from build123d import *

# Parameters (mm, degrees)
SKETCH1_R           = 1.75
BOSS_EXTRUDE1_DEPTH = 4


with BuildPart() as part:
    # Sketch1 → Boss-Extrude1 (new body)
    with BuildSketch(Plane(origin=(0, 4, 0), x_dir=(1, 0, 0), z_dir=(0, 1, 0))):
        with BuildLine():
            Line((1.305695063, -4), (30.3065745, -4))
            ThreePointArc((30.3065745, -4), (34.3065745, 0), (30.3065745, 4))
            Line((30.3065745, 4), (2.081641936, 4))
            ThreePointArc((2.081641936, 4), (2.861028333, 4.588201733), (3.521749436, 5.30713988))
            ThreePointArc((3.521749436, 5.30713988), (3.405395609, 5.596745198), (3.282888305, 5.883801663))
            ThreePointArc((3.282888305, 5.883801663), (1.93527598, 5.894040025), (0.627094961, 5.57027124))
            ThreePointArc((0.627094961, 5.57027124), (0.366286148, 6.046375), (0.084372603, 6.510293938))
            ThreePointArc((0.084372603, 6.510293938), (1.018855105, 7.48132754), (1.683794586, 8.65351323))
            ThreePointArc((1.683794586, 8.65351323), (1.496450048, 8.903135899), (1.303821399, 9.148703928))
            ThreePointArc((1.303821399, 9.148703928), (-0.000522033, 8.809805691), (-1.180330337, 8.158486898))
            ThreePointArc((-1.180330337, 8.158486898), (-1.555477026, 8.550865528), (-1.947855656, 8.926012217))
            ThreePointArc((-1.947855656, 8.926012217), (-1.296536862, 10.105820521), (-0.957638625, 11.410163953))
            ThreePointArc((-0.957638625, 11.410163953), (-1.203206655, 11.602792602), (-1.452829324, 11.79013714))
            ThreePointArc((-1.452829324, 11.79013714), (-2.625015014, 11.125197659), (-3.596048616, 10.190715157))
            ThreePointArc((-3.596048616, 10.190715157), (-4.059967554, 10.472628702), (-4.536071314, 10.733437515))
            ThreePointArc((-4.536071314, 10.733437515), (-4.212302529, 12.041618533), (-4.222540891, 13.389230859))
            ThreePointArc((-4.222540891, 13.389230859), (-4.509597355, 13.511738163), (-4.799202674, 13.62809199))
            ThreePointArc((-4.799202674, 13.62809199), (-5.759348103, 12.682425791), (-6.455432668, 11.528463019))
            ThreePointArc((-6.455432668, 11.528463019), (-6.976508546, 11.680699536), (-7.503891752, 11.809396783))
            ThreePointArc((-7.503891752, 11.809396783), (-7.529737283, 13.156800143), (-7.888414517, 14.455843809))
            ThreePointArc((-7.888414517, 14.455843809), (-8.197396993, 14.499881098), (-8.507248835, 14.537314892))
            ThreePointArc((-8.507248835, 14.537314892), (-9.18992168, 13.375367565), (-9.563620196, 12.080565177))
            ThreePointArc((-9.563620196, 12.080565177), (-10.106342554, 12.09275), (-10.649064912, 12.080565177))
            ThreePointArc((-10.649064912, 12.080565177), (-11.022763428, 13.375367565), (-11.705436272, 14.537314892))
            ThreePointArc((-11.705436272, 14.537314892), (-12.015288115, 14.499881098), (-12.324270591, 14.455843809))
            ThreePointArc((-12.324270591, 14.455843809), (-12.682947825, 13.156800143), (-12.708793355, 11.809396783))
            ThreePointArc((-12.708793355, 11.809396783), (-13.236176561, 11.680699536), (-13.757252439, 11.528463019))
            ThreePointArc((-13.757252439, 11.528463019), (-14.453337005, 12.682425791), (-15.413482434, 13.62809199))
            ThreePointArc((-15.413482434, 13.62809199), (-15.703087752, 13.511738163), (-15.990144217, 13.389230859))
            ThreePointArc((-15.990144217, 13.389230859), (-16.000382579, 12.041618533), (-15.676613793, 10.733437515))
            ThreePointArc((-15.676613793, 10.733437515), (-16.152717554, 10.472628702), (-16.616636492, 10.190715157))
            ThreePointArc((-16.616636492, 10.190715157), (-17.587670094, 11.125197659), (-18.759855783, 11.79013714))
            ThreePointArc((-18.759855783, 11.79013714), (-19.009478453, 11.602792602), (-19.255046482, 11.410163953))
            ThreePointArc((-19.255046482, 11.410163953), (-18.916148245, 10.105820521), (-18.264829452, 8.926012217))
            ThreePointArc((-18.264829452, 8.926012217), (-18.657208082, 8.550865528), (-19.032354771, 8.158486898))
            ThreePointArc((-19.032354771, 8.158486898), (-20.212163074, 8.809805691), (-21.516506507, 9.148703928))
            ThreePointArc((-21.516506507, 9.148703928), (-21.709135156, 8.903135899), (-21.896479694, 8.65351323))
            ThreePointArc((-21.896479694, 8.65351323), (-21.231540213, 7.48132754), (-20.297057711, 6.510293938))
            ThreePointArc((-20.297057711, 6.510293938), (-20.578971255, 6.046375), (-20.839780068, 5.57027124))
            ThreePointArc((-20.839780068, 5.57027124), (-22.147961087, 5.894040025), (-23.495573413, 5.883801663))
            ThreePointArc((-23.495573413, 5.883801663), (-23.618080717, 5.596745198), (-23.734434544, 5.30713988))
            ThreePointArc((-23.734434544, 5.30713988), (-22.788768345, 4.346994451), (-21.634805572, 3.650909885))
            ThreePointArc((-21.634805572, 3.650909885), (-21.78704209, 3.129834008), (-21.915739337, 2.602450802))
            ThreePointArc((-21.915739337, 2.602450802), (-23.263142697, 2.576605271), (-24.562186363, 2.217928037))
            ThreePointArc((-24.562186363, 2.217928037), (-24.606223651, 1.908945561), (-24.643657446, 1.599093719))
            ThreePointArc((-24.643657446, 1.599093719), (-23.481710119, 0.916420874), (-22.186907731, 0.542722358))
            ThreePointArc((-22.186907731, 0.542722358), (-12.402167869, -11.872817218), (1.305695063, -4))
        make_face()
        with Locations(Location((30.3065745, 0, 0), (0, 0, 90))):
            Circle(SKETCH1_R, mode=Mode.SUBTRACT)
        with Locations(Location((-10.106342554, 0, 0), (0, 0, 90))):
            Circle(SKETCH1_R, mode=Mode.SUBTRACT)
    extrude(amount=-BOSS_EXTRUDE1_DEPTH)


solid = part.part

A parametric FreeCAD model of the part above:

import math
import FreeCAD as App
import Part
import Sketcher
from FreeCAD import Vector

doc = App.newDocument("Part")
body = doc.addObject("PartDesign::Body", "Body")

# Sketch on XZ plane
sketch1 = body.newObject("Sketcher::SketchObject", "Sketch")
sketch1.AttachmentSupport = (doc.getObject("XZ_Plane"), [""])
sketch1.MapMode = "FlatFace"
sketch1.AttachmentOffset = App.Placement(Vector(0, 0, -4), App.Rotation())
sketch1.addGeometry(Part.LineSegment(Vector(1.305695, 4, 0), Vector(30.306574, 4, 0)), False)
sketch1.addGeometry(Part.ArcOfCircle(Part.Circle(Vector(30.306574, 0, 0), Vector(0, 0, 1), 4), math.radians(-90), math.radians(90)), False)
sketch1.addGeometry(Part.LineSegment(Vector(30.306574, -4, 0), Vector(2.081642, -4, 0)), False)
sketch1.addGeometry(Part.ArcOfCircle(Part.Circle(Vector(-0.768289, -8.586708, 0), Vector(0, 0, 1), 5.4), math.radians(37.396512), math.radians(58.14543)), False)
sketch1.addGeometry(Part.ArcOfCircle(Part.Circle(Vector(-10.106343, 0, 0), Vector(0, 0, 1), 14.625), math.radians(-23.722744), math.radians(-21.277256)), False)
sketch1.addGeometry(Part.ArcOfCircle(Part.Circle(Vector(2.568378, -0.531281, 0), Vector(0, 0, 1), 5.4), math.radians(-111.069299), math.radians(-82.396512)), False)
sketch1.addGeometry(Part.ArcOfCircle(Part.Circle(Vector(-10.106343, 0, 0), Vector(0, 0, 1), 12.09275), math.radians(-32.572297), math.radians(-27.427703)), False)
sketch1.addGeometry(Part.ArcOfCircle(Part.Circle(Vector(-3.308879, -10.710989, 0), Vector(0, 0, 1), 5.4), math.radians(22.396512), math.radians(51.069299)), False)
sketch1.addGeometry(Part.ArcOfCircle(Part.Circle(Vector(-10.106342, 0, 0), Vector(0, 0, 1), 14.625), math.radians(-38.722744), math.radians(-36.277256)), False)
sketch1.addGeometry(Part.ArcOfCircle(Part.Circle(Vector(1.998992, -3.793637, 0), Vector(0, 0, 1), 5.4), math.radians(-126.069299), math.radians(-97.396512)), False)
sketch1.addGeometry(Part.ArcOfCircle(Part.Circle(Vector(-10.106343, 0, 0), Vector(0, 0, 1), 12.09275), math.radians(-47.572297), math.radians(-42.427703)), False)
sketch1.addGeometry(Part.ArcOfCircle(Part.Circle(Vector(-6.312705, -12.105334, 0), Vector(0, 0, 1), 5.4), math.radians(7.396512), math.radians(36.069299)), False)
sketch1.addGeometry(Part.ArcOfCircle(Part.Circle(Vector(-10.106343, 0.000001, 0), Vector(0, 0, 1), 14.625001), math.radians(-53.722744), math.radians(-51.277256)), False)
sketch1.addGeometry(Part.ArcOfCircle(Part.Circle(Vector(0.604647, -6.797463, 0), Vector(0, 0, 1), 5.4), math.radians(-141.069299), math.radians(-112.396512)), False)
sketch1.addGeometry(Part.ArcOfCircle(Part.Circle(Vector(-10.106343, 0, 0), Vector(0, 0, 1), 12.09275), math.radians(-62.572297), math.radians(-57.427703)), False)
sketch1.addGeometry(Part.ArcOfCircle(Part.Circle(Vector(-9.575061, -12.674721, 0), Vector(0, 0, 1), 5.4), math.radians(-7.603488), math.radians(21.069299)), False)
sketch1.addGeometry(Part.ArcOfCircle(Part.Circle(Vector(-10.106342, -0.000001, 0), Vector(0, 0, 1), 14.624999), math.radians(-68.722744), math.radians(-66.277256)), False)
sketch1.addGeometry(Part.ArcOfCircle(Part.Circle(Vector(-1.519634, -9.338053, 0), Vector(0, 0, 1), 5.4), math.radians(-156.069299), math.radians(-127.396512)), False)
sketch1.addGeometry(Part.ArcOfCircle(Part.Circle(Vector(-10.106343, 0, 0), Vector(0, 0, 1), 12.09275), math.radians(-77.572297), math.radians(-72.427703)), False)
sketch1.addGeometry(Part.ArcOfCircle(Part.Circle(Vector(-12.873623, -12.380346, 0), Vector(0, 0, 1), 5.4), math.radians(-22.603488), math.radians(6.069299)), False)
sketch1.addGeometry(Part.ArcOfCircle(Part.Circle(Vector(-10.106342, -0.000002, 0), Vector(0, 0, 1), 14.624998), math.radians(-83.722744), math.radians(-81.277256)), False)
sketch1.addGeometry(Part.ArcOfCircle(Part.Circle(Vector(-4.229085, -11.242271, 0), Vector(0, 0, 1), 5.4), math.radians(-171.069299), math.radians(-142.396512)), False)
sketch1.addGeometry(Part.ArcOfCircle(Part.Circle(Vector(-10.106343, 0, 0), Vector(0, 0, 1), 12.09275), math.radians(-92.572297), math.radians(-87.427703)), False)
sketch1.addGeometry(Part.ArcOfCircle(Part.Circle(Vector(-15.9836, -11.242271, 0), Vector(0, 0, 1), 5.4), math.radians(-37.603488), math.radians(-8.930701)), False)
sketch1.addGeometry(Part.ArcOfCircle(Part.Circle(Vector(-10.106343, -0.000002, 0), Vector(0, 0, 1), 14.624998), math.radians(-98.722744), math.radians(-96.277256)), False)
sketch1.addGeometry(Part.ArcOfCircle(Part.Circle(Vector(-7.339062, -12.380346, 0), Vector(0, 0, 1), 5.4), math.radians(173.930701), math.radians(202.603488)), False)
sketch1.addGeometry(Part.ArcOfCircle(Part.Circle(Vector(-10.106343, 0, 0), Vector(0, 0, 1), 12.09275), math.radians(-107.572297), math.radians(-102.427703)), False)
sketch1.addGeometry(Part.ArcOfCircle(Part.Circle(Vector(-18.693051, -9.338053, 0), Vector(0, 0, 1), 5.4), math.radians(-52.603488), math.radians(-23.930701)), False)
sketch1.addGeometry(Part.ArcOfCircle(Part.Circle(Vector(-10.106342, 0, 0), Vector(0, 0, 1), 14.625), math.radians(-113.722744), math.radians(-111.277256)), False)
sketch1.addGeometry(Part.ArcOfCircle(Part.Circle(Vector(-10.637624, -12.674721, 0), Vector(0, 0, 1), 5.4), math.radians(158.930701), math.radians(187.603488)), False)
sketch1.addGeometry(Part.ArcOfCircle(Part.Circle(Vector(-10.106343, 0, 0), Vector(0, 0, 1), 12.09275), math.radians(-122.572297), math.radians(-117.427703)), False)
sketch1.addGeometry(Part.ArcOfCircle(Part.Circle(Vector(-20.817332, -6.797463, 0), Vector(0, 0, 1), 5.4), math.radians(-67.603488), math.radians(-38.930701)), False)
sketch1.addGeometry(Part.ArcOfCircle(Part.Circle(Vector(-10.106344, -0.000001, 0), Vector(0, 0, 1), 14.624998), math.radians(-128.722744), math.radians(-126.277256)), False)
sketch1.addGeometry(Part.ArcOfCircle(Part.Circle(Vector(-13.89998, -12.105334, 0), Vector(0, 0, 1), 5.4), math.radians(143.930701), math.radians(172.603488)), False)
sketch1.addGeometry(Part.ArcOfCircle(Part.Circle(Vector(-10.106342, 0, 0), Vector(0, 0, 1), 12.09275), math.radians(-137.572297), math.radians(-132.427703)), False)
sketch1.addGeometry(Part.ArcOfCircle(Part.Circle(Vector(-22.211677, -3.793637, 0), Vector(0, 0, 1), 5.4), math.radians(-82.603488), math.radians(-53.930701)), False)
sketch1.addGeometry(Part.ArcOfCircle(Part.Circle(Vector(-10.106343, 0, 0), Vector(0, 0, 1), 14.625), math.radians(-143.722744), math.radians(-141.277256)), False)
sketch1.addGeometry(Part.ArcOfCircle(Part.Circle(Vector(-16.903806, -10.710989, 0), Vector(0, 0, 1), 5.4), math.radians(128.930701), math.radians(157.603488)), False)
sketch1.addGeometry(Part.ArcOfCircle(Part.Circle(Vector(-10.106342, 0, 0), Vector(0, 0, 1), 12.092751), math.radians(-152.572297), math.radians(-147.427703)), False)
sketch1.addGeometry(Part.ArcOfCircle(Part.Circle(Vector(-22.781063, -0.531281, 0), Vector(0, 0, 1), 5.4), math.radians(-97.603488), math.radians(-68.930701)), False)
sketch1.addGeometry(Part.ArcOfCircle(Part.Circle(Vector(-10.106342, 0, 0), Vector(0, 0, 1), 14.625), math.radians(-158.722744), math.radians(-156.277256)), False)
sketch1.addGeometry(Part.ArcOfCircle(Part.Circle(Vector(-19.444396, -8.586708, 0), Vector(0, 0, 1), 5.4), math.radians(113.930701), math.radians(142.603488)), False)
sketch1.addGeometry(Part.ArcOfCircle(Part.Circle(Vector(-10.106343, 0, 0), Vector(0, 0, 1), 12.092749), math.radians(-167.572297), math.radians(-162.427702)), False)
sketch1.addGeometry(Part.ArcOfCircle(Part.Circle(Vector(-22.486688, 2.767281, 0), Vector(0, 0, 1), 5.4), math.radians(-112.603488), math.radians(-83.930701)), False)
sketch1.addGeometry(Part.ArcOfCircle(Part.Circle(Vector(-10.10634, 0, 0), Vector(0, 0, 1), 14.625003), math.radians(-173.722744), math.radians(-171.277256)), False)
sketch1.addGeometry(Part.ArcOfCircle(Part.Circle(Vector(-21.348613, -5.877257, 0), Vector(0, 0, 1), 5.4), math.radians(98.930701), math.radians(127.603488)), False)
sketch1.addGeometry(Part.ArcOfCircle(Part.Circle(Vector(-10.106343, 0, 0), Vector(0, 0, 1), 12.09275), math.radians(19.315925), math.radians(182.572297)), False)
sketch1.addGeometry(Part.Circle(Vector(-10.106343, 0, 0), Vector(0, 0, 1), 1.75), False)
sketch1.addGeometry(Part.Circle(Vector(30.306574, 0, 0), Vector(0, 0, 1), 1.75), False)
sketch1.addConstraint(Sketcher.Constraint("Coincident", 0, 2, 1, 2))
sketch1.addConstraint(Sketcher.Constraint("Coincident", 1, 1, 2, 1))
sketch1.addConstraint(Sketcher.Constraint("Coincident", 2, 2, 3, 2))
sketch1.addConstraint(Sketcher.Constraint("Coincident", 3, 1, 4, 2))
sketch1.addConstraint(Sketcher.Constraint("Coincident", 4, 1, 5, 2))
sketch1.addConstraint(Sketcher.Constraint("Coincident", 5, 1, 6, 2))
sketch1.addConstraint(Sketcher.Constraint("Coincident", 6, 1, 7, 2))
sketch1.addConstraint(Sketcher.Constraint("Coincident", 7, 1, 8, 2))
sketch1.addConstraint(Sketcher.Constraint("Coincident", 8, 1, 9, 2))
sketch1.addConstraint(Sketcher.Constraint("Coincident", 9, 1, 10, 2))
sketch1.addConstraint(Sketcher.Constraint("Coincident", 10, 1, 11, 2))
sketch1.addConstraint(Sketcher.Constraint("Coincident", 11, 1, 12, 2))
sketch1.addConstraint(Sketcher.Constraint("Coincident", 12, 1, 13, 2))
sketch1.addConstraint(Sketcher.Constraint("Coincident", 13, 1, 14, 2))
sketch1.addConstraint(Sketcher.Constraint("Coincident", 14, 1, 15, 2))
sketch1.addConstraint(Sketcher.Constraint("Coincident", 15, 1, 16, 2))
sketch1.addConstraint(Sketcher.Constraint("Coincident", 16, 1, 17, 2))
sketch1.addConstraint(Sketcher.Constraint("Coincident", 17, 1, 18, 2))
sketch1.addConstraint(Sketcher.Constraint("Coincident", 18, 1, 19, 2))
sketch1.addConstraint(Sketcher.Constraint("Coincident", 19, 1, 20, 2))
sketch1.addConstraint(Sketcher.Constraint("Coincident", 20, 1, 21, 2))
sketch1.addConstraint(Sketcher.Constraint("Coincident", 21, 1, 22, 2))
sketch1.addConstraint(Sketcher.Constraint("Coincident", 22, 1, 23, 2))
sketch1.addConstraint(Sketcher.Constraint("Coincident", 23, 1, 24, 2))
sketch1.addConstraint(Sketcher.Constraint("Coincident", 24, 1, 25, 2))
sketch1.addConstraint(Sketcher.Constraint("Coincident", 25, 1, 26, 2))
sketch1.addConstraint(Sketcher.Constraint("Coincident", 26, 1, 27, 2))
sketch1.addConstraint(Sketcher.Constraint("Coincident", 27, 1, 28, 2))
sketch1.addConstraint(Sketcher.Constraint("Coincident", 28, 1, 29, 2))
sketch1.addConstraint(Sketcher.Constraint("Coincident", 29, 1, 30, 2))
sketch1.addConstraint(Sketcher.Constraint("Coincident", 30, 1, 31, 2))
sketch1.addConstraint(Sketcher.Constraint("Coincident", 31, 1, 32, 2))
sketch1.addConstraint(Sketcher.Constraint("Coincident", 32, 1, 33, 2))
sketch1.addConstraint(Sketcher.Constraint("Coincident", 33, 1, 34, 2))
sketch1.addConstraint(Sketcher.Constraint("Coincident", 34, 1, 35, 2))
sketch1.addConstraint(Sketcher.Constraint("Coincident", 35, 1, 36, 2))
sketch1.addConstraint(Sketcher.Constraint("Coincident", 36, 1, 37, 2))
sketch1.addConstraint(Sketcher.Constraint("Coincident", 37, 1, 38, 2))
sketch1.addConstraint(Sketcher.Constraint("Coincident", 38, 1, 39, 2))
sketch1.addConstraint(Sketcher.Constraint("Coincident", 39, 1, 40, 2))
sketch1.addConstraint(Sketcher.Constraint("Coincident", 40, 1, 41, 2))
sketch1.addConstraint(Sketcher.Constraint("Coincident", 41, 1, 42, 2))
sketch1.addConstraint(Sketcher.Constraint("Coincident", 42, 1, 43, 2))
sketch1.addConstraint(Sketcher.Constraint("Coincident", 43, 1, 44, 2))
sketch1.addConstraint(Sketcher.Constraint("Coincident", 44, 1, 45, 2))
sketch1.addConstraint(Sketcher.Constraint("Coincident", 45, 1, 46, 2))
sketch1.addConstraint(Sketcher.Constraint("Coincident", 46, 1, 0, 1))
sketch1.addConstraint(Sketcher.Constraint("Horizontal", 0))
sketch1.addConstraint(Sketcher.Constraint("Horizontal", 2))
sketch1.addConstraint(Sketcher.Constraint("Coincident", 6, 3, 4, 3))
sketch1.addConstraint(Sketcher.Constraint("Coincident", 8, 3, 4, 3))
sketch1.addConstraint(Sketcher.Constraint("Coincident", 10, 3, 4, 3))
sketch1.addConstraint(Sketcher.Constraint("Coincident", 12, 3, 4, 3))
sketch1.addConstraint(Sketcher.Constraint("Coincident", 14, 3, 4, 3))
sketch1.addConstraint(Sketcher.Constraint("Coincident", 16, 3, 4, 3))
sketch1.addConstraint(Sketcher.Constraint("Coincident", 18, 3, 4, 3))
sketch1.addConstraint(Sketcher.Constraint("Coincident", 20, 3, 4, 3))
sketch1.addConstraint(Sketcher.Constraint("Coincident", 22, 3, 4, 3))
sketch1.addConstraint(Sketcher.Constraint("Coincident", 24, 3, 4, 3))
sketch1.addConstraint(Sketcher.Constraint("Coincident", 26, 3, 4, 3))
sketch1.addConstraint(Sketcher.Constraint("Coincident", 28, 3, 4, 3))
sketch1.addConstraint(Sketcher.Constraint("Coincident", 30, 3, 4, 3))
sketch1.addConstraint(Sketcher.Constraint("Coincident", 32, 3, 4, 3))
sketch1.addConstraint(Sketcher.Constraint("Coincident", 34, 3, 4, 3))
sketch1.addConstraint(Sketcher.Constraint("Coincident", 36, 3, 4, 3))
sketch1.addConstraint(Sketcher.Constraint("Coincident", 38, 3, 4, 3))
sketch1.addConstraint(Sketcher.Constraint("Coincident", 40, 3, 4, 3))
sketch1.addConstraint(Sketcher.Constraint("Coincident", 42, 3, 4, 3))
sketch1.addConstraint(Sketcher.Constraint("Coincident", 44, 3, 4, 3))
sketch1.addConstraint(Sketcher.Constraint("Coincident", 46, 3, 4, 3))
sketch1.addConstraint(Sketcher.Constraint("Coincident", 47, 3, 4, 3))
sketch1.addConstraint(Sketcher.Constraint("Coincident", 48, 3, 1, 3))
sketch1.addConstraint(Sketcher.Constraint("PointOnObject", 1, 3, -1))
sketch1.addConstraint(Sketcher.Constraint("PointOnObject", 4, 3, -1))
sketch1.addConstraint(Sketcher.Constraint("Radius", 1, 4.0))
sketch1.addConstraint(Sketcher.Constraint("Diameter", 47, 3.5))
sketch1.addConstraint(Sketcher.Constraint("Diameter", 48, 3.5))
sketch1.addConstraint(Sketcher.Constraint("Radius", 3, 5.4))
sketch1.addConstraint(Sketcher.Constraint("Radius", 5, 5.4))
sketch1.addConstraint(Sketcher.Constraint("Radius", 7, 5.4))
sketch1.addConstraint(Sketcher.Constraint("Radius", 9, 5.4))
sketch1.addConstraint(Sketcher.Constraint("Radius", 11, 5.4))
sketch1.addConstraint(Sketcher.Constraint("Radius", 13, 5.4))
sketch1.addConstraint(Sketcher.Constraint("Radius", 15, 5.4))
sketch1.addConstraint(Sketcher.Constraint("Radius", 17, 5.4))
sketch1.addConstraint(Sketcher.Constraint("Radius", 19, 5.4))
sketch1.addConstraint(Sketcher.Constraint("Radius", 21, 5.4))
sketch1.addConstraint(Sketcher.Constraint("Radius", 23, 5.4))
sketch1.addConstraint(Sketcher.Constraint("Radius", 25, 5.4))
sketch1.addConstraint(Sketcher.Constraint("Radius", 27, 5.4))
sketch1.addConstraint(Sketcher.Constraint("Radius", 29, 5.4))
sketch1.addConstraint(Sketcher.Constraint("Radius", 31, 5.4))
sketch1.addConstraint(Sketcher.Constraint("Radius", 33, 5.4))
sketch1.addConstraint(Sketcher.Constraint("Radius", 35, 5.4))
sketch1.addConstraint(Sketcher.Constraint("Radius", 37, 5.4))
sketch1.addConstraint(Sketcher.Constraint("Radius", 39, 5.4))
sketch1.addConstraint(Sketcher.Constraint("Radius", 41, 5.4))
sketch1.addConstraint(Sketcher.Constraint("Radius", 43, 5.4))
sketch1.addConstraint(Sketcher.Constraint("Radius", 45, 5.4))
sketch1.addConstraint(Sketcher.Constraint("Radius", 4, 14.625))
sketch1.addConstraint(Sketcher.Constraint("Radius", 8, 14.625))
sketch1.addConstraint(Sketcher.Constraint("Radius", 12, 14.625001))
sketch1.addConstraint(Sketcher.Constraint("Radius", 16, 14.624999))
sketch1.addConstraint(Sketcher.Constraint("Radius", 20, 14.624998))
sketch1.addConstraint(Sketcher.Constraint("Radius", 24, 14.624998))
sketch1.addConstraint(Sketcher.Constraint("Radius", 28, 14.625))
sketch1.addConstraint(Sketcher.Constraint("Radius", 32, 14.624998))
sketch1.addConstraint(Sketcher.Constraint("Radius", 36, 14.625))
sketch1.addConstraint(Sketcher.Constraint("Radius", 40, 14.625))
sketch1.addConstraint(Sketcher.Constraint("Radius", 6, 12.09275))
sketch1.addConstraint(Sketcher.Constraint("Radius", 10, 12.09275))
sketch1.addConstraint(Sketcher.Constraint("Radius", 14, 12.09275))
sketch1.addConstraint(Sketcher.Constraint("Radius", 18, 12.09275))
sketch1.addConstraint(Sketcher.Constraint("Radius", 22, 12.09275))
sketch1.addConstraint(Sketcher.Constraint("Radius", 26, 12.09275))
sketch1.addConstraint(Sketcher.Constraint("Radius", 30, 12.09275))
sketch1.addConstraint(Sketcher.Constraint("Radius", 34, 12.09275))
sketch1.addConstraint(Sketcher.Constraint("Radius", 38, 12.092751))
sketch1.addConstraint(Sketcher.Constraint("Radius", 42, 12.092749))
sketch1.addConstraint(Sketcher.Constraint("Radius", 46, 12.09275))
sketch1.addConstraint(Sketcher.Constraint("Radius", 44, 14.625003))
sketch1.addConstraint(Sketcher.Constraint("DistanceX", 0, 1, 0, 2, 29.000879))
sketch1.addConstraint(Sketcher.Constraint("DistanceX", 23, 3, -1, 1, 15.9836))
sketch1.addConstraint(Sketcher.Constraint("DistanceY", 4, 1, -1, 1, 5.883802))
sketch1.addConstraint(Sketcher.Constraint("DistanceY", 39, 1, -1, 1, 5.883802))
sketch1.addConstraint(Sketcher.Constraint("DistanceX", 2, 2, 2, 1, 28.224933))
sketch1.addConstraint(Sketcher.Constraint("DistanceX", 3, 3, -1, 1, 0.768289))
sketch1.addConstraint(Sketcher.Constraint("DistanceY", 3, 3, -1, 1, 8.586708))
sketch1.addConstraint(Sketcher.Constraint("DistanceY", 5, 3, -1, 1, 0.531281))
sketch1.addConstraint(Sketcher.Constraint("DistanceX", 7, 3, -1, 1, 3.308879))
sketch1.addConstraint(Sketcher.Constraint("DistanceY", 7, 3, -1, 1, 10.710989))
sketch1.addConstraint(Sketcher.Constraint("DistanceX", -1, 1, 9, 3, 1.998992))
sketch1.addConstraint(Sketcher.Constraint("DistanceX", 15, 3, -1, 1, 9.575061))
sketch1.addConstraint(Sketcher.Constraint("DistanceY", 15, 3, -1, 1, 12.674721))
sketch1.addConstraint(Sketcher.Constraint("DistanceY", 21, 3, -1, 1, 11.242271))
sketch1.addConstraint(Sketcher.Constraint("DistanceY", 23, 3, -1, 1, 11.242271))
sketch1.addConstraint(Sketcher.Constraint("DistanceX", 25, 3, -1, 1, 7.339062))
sketch1.addConstraint(Sketcher.Constraint("DistanceX", 27, 3, -1, 1, 18.693051))
sketch1.addConstraint(Sketcher.Constraint("DistanceY", 29, 3, -1, 1, 12.674721))
sketch1.addConstraint(Sketcher.Constraint("DistanceX", 31, 3, -1, 1, 20.817332))
sketch1.addConstraint(Sketcher.Constraint("DistanceX", 33, 3, -1, 1, 13.89998))
sketch1.addConstraint(Sketcher.Constraint("DistanceY", 37, 3, -1, 1, 10.710989))
sketch1.addConstraint(Sketcher.Constraint("DistanceY", 39, 3, -1, 1, 0.531281))
sketch1.addConstraint(Sketcher.Constraint("DistanceY", 41, 3, -1, 1, 8.586708))
sketch1.addConstraint(Sketcher.Constraint("DistanceX", 43, 3, -1, 1, 22.486688))
sketch1.addConstraint(Sketcher.Constraint("DistanceY", -1, 1, 43, 3, 2.767281))
sketch1.addConstraint(Sketcher.Constraint("DistanceX", 44, 3, -1, 1, 10.10634))
sketch1.addConstraint(Sketcher.Constraint("DistanceX", -1, 1, 8, 1, 1.303821))
sketch1.addConstraint(Sketcher.Constraint("DistanceX", 11, 1, -1, 1, 0.957639))
sketch1.addConstraint(Sketcher.Constraint("DistanceX", 12, 1, -1, 1, 1.452829))
sketch1.addConstraint(Sketcher.Constraint("DistanceX", 13, 1, -1, 1, 3.596049))
sketch1.addConstraint(Sketcher.Constraint("DistanceY", 16, 1, -1, 1, 13.628092))
sketch1.addConstraint(Sketcher.Constraint("DistanceX", 18, 1, -1, 1, 7.503892))
sketch1.addConstraint(Sketcher.Constraint("DistanceX", 20, 1, -1, 1, 8.507249))
sketch1.addConstraint(Sketcher.Constraint("DistanceX", 24, 1, -1, 1, 12.324271))
sketch1.addConstraint(Sketcher.Constraint("DistanceY", 27, 1, -1, 1, 13.628092))
sketch1.addConstraint(Sketcher.Constraint("DistanceY", 28, 1, -1, 1, 13.389231))
sketch1.addConstraint(Sketcher.Constraint("DistanceX", 33, 1, -1, 1, 18.264829))
sketch1.addConstraint(Sketcher.Constraint("DistanceX", 36, 1, -1, 1, 21.89648))
sketch1.addConstraint(Sketcher.Constraint("DistanceY", 40, 1, -1, 1, 5.30714))
sketch1.addConstraint(Sketcher.Constraint("DistanceX", -1, 1, 1, 3, 30.306574))
sketch1.addConstraint(Sketcher.Constraint("DistanceX", 11, 3, -1, 1, 6.312705))
sketch1.addConstraint(Sketcher.Constraint("DistanceX", 17, 3, -1, 1, 1.519634))
sketch1.addConstraint(Sketcher.Constraint("DistanceX", 19, 3, -1, 1, 12.873623))
sketch1.addConstraint(Sketcher.Constraint("DistanceY", 31, 3, -1, 1, 6.797463))
sketch1.addConstraint(Sketcher.Constraint("DistanceX", 35, 3, -1, 1, 22.211677))
sketch1.addConstraint(Sketcher.Constraint("DistanceY", 35, 3, -1, 1, 3.793637))
sketch1.addConstraint(Sketcher.Constraint("DistanceX", 45, 3, -1, 1, 21.348613))
sketch1.addConstraint(Sketcher.Constraint("DistanceY", 45, 3, -1, 1, 5.877257))
pad1 = body.newObject("PartDesign::Pad", "Pad")
pad1.Profile = sketch1
pad1.Length = 4

doc.recompute()
